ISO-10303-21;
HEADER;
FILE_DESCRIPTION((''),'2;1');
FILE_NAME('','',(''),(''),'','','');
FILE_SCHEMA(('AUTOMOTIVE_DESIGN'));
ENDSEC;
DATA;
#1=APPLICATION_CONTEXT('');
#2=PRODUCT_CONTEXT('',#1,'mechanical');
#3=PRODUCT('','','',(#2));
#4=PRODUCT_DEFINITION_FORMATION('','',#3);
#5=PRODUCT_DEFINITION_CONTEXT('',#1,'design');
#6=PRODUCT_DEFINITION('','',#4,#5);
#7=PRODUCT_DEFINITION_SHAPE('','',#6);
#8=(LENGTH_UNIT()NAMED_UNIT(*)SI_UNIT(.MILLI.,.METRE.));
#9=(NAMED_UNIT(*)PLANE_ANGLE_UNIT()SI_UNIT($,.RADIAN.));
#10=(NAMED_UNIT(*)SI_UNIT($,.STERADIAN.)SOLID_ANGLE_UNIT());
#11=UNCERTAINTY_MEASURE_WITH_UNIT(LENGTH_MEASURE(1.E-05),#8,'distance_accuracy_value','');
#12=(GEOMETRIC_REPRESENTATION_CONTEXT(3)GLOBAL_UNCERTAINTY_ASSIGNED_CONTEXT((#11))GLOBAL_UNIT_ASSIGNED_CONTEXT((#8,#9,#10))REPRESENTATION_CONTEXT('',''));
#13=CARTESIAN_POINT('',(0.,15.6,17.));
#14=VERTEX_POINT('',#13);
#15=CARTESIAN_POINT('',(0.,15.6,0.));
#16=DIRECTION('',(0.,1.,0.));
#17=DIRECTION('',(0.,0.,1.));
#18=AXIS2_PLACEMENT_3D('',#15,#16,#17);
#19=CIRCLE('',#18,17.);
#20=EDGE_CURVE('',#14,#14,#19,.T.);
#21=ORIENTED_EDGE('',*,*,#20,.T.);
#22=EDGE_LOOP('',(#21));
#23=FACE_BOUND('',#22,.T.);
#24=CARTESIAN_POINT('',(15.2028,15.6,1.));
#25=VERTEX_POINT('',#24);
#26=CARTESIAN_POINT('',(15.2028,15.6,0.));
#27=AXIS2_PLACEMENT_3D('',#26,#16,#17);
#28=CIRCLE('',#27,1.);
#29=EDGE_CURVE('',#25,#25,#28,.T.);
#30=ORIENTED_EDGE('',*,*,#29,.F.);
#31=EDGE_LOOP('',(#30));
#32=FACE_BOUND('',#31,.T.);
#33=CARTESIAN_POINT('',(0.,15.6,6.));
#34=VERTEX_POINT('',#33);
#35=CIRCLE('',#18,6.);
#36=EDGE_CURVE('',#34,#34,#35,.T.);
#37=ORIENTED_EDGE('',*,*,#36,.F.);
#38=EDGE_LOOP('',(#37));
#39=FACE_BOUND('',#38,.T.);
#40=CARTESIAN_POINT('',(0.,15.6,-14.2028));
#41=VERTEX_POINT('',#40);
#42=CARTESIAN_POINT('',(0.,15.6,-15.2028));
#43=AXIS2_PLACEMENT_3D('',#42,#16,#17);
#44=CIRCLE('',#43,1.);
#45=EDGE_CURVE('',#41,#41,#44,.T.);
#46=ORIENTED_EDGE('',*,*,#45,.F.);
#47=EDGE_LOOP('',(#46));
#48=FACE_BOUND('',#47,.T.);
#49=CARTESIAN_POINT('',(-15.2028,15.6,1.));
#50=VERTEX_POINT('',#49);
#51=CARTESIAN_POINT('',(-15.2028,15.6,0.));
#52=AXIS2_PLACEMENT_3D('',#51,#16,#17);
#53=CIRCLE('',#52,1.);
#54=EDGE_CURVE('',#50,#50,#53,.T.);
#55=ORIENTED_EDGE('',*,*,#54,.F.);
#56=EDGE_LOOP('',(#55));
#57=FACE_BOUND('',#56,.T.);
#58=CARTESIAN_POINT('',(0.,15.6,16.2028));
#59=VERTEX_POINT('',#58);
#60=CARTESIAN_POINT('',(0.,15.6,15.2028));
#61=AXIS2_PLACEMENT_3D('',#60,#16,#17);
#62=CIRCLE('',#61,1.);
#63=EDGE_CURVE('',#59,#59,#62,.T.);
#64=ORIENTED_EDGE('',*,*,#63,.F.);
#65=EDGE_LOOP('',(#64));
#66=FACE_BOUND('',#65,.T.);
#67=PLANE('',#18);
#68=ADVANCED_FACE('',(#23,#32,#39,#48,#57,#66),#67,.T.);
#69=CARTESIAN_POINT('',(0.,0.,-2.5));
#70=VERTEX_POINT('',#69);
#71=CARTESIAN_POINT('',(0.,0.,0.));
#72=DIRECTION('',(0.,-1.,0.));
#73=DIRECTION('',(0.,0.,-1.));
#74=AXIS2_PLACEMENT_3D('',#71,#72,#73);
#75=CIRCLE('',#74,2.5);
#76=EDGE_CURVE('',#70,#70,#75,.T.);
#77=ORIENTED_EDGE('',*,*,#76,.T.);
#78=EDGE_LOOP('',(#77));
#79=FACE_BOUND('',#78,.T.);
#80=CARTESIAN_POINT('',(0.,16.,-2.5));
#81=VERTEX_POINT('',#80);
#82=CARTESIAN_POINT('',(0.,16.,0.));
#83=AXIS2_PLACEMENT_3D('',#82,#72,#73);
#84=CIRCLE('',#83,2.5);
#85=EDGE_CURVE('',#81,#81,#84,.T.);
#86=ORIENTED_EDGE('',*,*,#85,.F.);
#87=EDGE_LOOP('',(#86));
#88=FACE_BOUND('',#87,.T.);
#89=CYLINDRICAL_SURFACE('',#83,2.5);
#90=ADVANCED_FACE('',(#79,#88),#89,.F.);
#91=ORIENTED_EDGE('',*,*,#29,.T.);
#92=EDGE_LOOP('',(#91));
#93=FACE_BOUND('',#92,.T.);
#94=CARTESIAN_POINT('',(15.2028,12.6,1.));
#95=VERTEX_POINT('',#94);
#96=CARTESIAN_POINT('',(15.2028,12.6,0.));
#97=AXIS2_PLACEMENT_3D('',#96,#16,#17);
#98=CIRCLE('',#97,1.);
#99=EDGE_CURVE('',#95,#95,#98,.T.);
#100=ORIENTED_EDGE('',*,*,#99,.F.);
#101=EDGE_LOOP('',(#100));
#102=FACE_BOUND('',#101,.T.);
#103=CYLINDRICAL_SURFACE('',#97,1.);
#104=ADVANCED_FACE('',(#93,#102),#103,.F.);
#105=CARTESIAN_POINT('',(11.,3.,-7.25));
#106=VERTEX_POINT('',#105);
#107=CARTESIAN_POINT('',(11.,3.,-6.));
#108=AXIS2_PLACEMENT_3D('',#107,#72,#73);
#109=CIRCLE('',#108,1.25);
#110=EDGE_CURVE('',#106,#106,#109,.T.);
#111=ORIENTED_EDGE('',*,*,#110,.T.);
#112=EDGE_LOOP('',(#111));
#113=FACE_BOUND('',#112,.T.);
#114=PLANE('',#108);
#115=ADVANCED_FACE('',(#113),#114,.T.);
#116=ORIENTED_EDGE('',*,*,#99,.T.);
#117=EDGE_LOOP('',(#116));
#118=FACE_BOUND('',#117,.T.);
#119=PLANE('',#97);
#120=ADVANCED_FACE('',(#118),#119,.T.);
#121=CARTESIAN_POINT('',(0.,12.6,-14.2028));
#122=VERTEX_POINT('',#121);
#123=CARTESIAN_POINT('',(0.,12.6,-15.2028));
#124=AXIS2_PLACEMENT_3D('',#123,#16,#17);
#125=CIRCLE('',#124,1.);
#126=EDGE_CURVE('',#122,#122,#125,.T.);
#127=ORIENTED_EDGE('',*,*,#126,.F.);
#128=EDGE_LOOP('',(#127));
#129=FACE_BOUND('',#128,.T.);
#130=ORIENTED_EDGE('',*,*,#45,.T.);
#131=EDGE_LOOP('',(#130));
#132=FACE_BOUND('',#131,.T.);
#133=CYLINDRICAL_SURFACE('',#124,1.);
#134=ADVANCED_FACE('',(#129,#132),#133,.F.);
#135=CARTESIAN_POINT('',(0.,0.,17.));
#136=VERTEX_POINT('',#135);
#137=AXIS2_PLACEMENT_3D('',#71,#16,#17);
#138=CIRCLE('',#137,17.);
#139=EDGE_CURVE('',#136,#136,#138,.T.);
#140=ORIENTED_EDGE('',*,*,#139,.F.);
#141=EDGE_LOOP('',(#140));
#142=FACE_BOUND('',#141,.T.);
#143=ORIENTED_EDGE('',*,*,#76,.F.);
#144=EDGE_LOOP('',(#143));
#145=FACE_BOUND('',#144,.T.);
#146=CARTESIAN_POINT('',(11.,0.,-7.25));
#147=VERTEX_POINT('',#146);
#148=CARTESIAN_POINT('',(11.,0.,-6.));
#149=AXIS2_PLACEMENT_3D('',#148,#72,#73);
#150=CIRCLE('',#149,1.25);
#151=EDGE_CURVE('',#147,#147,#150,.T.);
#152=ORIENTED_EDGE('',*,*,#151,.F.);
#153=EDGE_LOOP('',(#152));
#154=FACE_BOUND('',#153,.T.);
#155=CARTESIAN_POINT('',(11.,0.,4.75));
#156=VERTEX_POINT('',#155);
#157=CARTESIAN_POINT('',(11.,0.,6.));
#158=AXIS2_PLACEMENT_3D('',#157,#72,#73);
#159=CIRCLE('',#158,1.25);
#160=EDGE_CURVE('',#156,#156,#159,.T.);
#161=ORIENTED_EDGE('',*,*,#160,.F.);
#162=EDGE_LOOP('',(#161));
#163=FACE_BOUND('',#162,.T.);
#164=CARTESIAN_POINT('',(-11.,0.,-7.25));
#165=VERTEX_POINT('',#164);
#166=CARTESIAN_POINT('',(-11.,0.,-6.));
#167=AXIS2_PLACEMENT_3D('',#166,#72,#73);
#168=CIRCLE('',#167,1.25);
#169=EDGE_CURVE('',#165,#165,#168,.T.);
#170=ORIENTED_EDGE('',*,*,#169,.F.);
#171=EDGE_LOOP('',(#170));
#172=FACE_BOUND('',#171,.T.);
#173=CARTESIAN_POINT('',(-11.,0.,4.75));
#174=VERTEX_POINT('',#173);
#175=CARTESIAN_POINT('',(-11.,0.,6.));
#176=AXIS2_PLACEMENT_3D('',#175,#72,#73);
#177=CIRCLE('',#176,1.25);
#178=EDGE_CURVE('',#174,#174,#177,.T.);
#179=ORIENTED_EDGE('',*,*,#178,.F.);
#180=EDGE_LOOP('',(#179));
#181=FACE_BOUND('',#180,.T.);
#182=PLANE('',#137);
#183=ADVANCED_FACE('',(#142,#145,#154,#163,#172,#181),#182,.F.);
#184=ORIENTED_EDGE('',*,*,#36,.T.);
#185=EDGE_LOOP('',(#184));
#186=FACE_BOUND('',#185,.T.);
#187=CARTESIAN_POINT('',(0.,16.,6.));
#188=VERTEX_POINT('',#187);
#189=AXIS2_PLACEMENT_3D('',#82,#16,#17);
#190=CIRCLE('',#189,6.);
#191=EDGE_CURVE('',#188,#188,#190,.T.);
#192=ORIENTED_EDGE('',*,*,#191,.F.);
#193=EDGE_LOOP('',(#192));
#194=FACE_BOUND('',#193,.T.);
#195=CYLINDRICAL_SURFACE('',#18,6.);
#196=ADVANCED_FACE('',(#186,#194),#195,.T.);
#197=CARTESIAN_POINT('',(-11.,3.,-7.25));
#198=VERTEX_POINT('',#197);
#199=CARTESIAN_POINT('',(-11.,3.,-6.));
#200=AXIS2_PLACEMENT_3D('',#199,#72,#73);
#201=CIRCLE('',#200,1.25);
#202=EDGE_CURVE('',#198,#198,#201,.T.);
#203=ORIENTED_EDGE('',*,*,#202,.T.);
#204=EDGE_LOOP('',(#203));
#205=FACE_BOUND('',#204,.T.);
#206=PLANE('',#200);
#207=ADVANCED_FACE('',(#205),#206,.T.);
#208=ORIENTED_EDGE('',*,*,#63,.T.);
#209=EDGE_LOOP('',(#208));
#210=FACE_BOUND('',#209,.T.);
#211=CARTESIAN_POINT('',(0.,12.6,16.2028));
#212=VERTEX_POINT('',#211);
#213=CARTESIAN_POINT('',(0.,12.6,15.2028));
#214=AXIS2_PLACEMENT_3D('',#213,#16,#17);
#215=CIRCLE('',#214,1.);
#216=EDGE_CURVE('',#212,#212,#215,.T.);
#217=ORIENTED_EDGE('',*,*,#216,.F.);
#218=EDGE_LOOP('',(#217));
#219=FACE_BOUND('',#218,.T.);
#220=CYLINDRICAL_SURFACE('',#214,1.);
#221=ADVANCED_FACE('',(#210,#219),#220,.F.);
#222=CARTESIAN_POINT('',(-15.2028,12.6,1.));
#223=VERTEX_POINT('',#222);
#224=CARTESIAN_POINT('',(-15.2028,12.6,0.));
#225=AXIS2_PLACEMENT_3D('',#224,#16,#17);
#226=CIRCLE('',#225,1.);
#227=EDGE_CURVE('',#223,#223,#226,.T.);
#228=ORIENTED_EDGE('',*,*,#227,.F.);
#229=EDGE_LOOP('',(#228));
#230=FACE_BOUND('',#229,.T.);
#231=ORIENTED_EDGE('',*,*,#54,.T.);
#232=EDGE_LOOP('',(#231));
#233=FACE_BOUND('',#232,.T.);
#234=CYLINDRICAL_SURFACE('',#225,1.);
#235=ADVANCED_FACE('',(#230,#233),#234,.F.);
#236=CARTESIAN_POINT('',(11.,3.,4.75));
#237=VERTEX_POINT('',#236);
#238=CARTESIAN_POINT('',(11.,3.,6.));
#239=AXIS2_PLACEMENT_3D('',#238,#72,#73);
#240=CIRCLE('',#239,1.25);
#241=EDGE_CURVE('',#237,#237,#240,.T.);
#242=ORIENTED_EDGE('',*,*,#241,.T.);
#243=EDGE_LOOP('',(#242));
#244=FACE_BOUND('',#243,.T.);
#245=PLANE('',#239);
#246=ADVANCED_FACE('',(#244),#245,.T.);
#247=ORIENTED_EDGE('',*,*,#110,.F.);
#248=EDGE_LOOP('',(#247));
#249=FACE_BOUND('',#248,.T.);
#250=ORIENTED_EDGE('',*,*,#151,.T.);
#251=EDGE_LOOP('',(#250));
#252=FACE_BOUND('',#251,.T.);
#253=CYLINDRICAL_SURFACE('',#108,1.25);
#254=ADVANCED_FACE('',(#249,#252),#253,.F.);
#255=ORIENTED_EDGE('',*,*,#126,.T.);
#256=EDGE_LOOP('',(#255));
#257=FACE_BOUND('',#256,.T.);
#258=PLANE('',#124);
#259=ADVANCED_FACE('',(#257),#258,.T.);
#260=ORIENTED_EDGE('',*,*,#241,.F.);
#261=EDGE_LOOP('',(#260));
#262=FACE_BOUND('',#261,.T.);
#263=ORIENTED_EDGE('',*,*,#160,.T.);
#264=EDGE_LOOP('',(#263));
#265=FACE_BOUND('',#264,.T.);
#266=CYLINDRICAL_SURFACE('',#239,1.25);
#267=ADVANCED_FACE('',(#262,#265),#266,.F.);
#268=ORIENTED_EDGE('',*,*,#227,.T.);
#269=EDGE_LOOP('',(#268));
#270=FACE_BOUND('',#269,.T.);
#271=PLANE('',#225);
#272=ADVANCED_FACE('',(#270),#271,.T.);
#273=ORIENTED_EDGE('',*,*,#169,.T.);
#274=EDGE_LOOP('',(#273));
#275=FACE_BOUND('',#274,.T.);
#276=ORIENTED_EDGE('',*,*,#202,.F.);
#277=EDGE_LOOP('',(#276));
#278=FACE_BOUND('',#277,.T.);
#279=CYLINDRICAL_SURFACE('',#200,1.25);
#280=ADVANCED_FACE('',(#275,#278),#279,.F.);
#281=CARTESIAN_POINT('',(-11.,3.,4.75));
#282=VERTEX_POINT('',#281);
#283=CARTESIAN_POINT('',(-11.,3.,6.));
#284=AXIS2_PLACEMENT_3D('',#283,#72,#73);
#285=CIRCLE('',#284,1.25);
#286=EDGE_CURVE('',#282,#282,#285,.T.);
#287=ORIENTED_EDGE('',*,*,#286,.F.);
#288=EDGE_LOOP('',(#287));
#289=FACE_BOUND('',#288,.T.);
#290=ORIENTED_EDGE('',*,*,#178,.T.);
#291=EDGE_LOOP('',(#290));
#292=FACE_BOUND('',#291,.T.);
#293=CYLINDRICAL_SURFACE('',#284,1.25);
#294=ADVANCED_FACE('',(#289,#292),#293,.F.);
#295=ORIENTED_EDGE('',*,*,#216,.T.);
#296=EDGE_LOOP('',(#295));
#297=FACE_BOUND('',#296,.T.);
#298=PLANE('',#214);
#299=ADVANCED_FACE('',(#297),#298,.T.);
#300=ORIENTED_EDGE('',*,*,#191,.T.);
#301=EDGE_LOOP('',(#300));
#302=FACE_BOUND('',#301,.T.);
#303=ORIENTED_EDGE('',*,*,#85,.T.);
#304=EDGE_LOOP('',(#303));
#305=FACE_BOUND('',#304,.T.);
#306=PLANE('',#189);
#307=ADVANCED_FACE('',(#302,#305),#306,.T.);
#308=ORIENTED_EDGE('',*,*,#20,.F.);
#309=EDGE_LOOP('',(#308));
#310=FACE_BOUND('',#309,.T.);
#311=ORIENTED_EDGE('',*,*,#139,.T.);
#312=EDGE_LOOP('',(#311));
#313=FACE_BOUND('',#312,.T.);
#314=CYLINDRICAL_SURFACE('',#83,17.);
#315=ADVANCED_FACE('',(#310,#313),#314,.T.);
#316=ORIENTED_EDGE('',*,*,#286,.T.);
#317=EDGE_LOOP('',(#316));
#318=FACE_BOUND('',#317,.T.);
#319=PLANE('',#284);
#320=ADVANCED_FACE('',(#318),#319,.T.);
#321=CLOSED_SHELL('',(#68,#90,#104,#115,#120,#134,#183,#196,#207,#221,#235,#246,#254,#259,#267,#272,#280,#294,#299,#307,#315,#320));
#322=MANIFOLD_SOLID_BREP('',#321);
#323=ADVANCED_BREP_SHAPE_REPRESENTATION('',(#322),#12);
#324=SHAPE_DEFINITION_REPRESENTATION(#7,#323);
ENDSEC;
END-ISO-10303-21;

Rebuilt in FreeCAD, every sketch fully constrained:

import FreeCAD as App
import Part
import Sketcher
from FreeCAD import Vector
Q = App.Units.Quantity

doc = App.newDocument("Part")
params = doc.addObject("Spreadsheet::Sheet", "Params")
for row, (alias, value) in enumerate([
    ("sketch1_diameter", "34 mm"),
    ("pad1_length", "16 mm"),
    ("sketch2_diameter", "34 mm"),
    ("sketch2_diameter2", "12 mm"),
    ("pocket1_length", "0.4 mm"),
    ("sketch3_diameter", "2 mm"),
    ("pocket2_length", "3.4 mm"),
    ("sketch4_diameter", "2.5 mm"),
    ("pocket3_length", "3 mm"),
    ("sketch5_diameter", "5 mm"),
], start=1):
    params.set(f"A{row}", alias)
    params.set(f"B{row}", "=" + value)
    params.setAlias(f"B{row}", alias)

body = doc.addObject("PartDesign::Body", "Body")

sketch1 = body.newObject("Sketcher::SketchObject", "Sketch")
sketch1.AttachmentSupport = (doc.getObject("XZ_Plane"), [""])
sketch1.MapMode = "FlatFace"
sketch1.addGeometry(Part.Circle(Vector(0, 0, 0), Vector(0, 0, 1), 17), False)
sketch1.addConstraint([
    Sketcher.Constraint("Coincident", 0, 3, -1, 1),
    Sketcher.Constraint("Diameter", 0, Q("34 mm")),
])
sketch1.setExpression("Constraints[1]", "Params.sketch1_diameter")
pad1 = body.newObject("PartDesign::Pad", "Pad")
pad1.Profile = sketch1
pad1.setExpression("Length", "Params.pad1_length")
pad1.Reversed = True

sketch2 = body.newObject("Sketcher::SketchObject", "Sketch001")
sketch2.AttachmentSupport = (doc.getObject("XZ_Plane"), [""])
sketch2.MapMode = "FlatFace"
sketch2.AttachmentOffset = App.Placement(Vector(0, 0, -15.6), App.Rotation())
sketch2.addGeometry([
    Part.Circle(Vector(0, 0, 0), Vector(0, 0, 1), 17),
    Part.Circle(Vector(0, 0, 0), Vector(0, 0, 1), 6),
], False)
sketch2.addConstraint([
    Sketcher.Constraint("Coincident", 0, 3, -1, 1),
    Sketcher.Constraint("Coincident", 1, 3, -1, 1),
    Sketcher.Constraint("Diameter", 0, Q("34 mm")),
    Sketcher.Constraint("Diameter", 1, Q("12 mm")),
])
sketch2.setExpression("Constraints[2]", "Params.sketch2_diameter")
sketch2.setExpression("Constraints[3]", "Params.sketch2_diameter2")
pocket1 = body.newObject("PartDesign::Pocket", "Pocket")
pocket1.Profile = sketch2
pocket1.setExpression("Length", "Params.pocket1_length")

sketch3 = body.newObject("Sketcher::SketchObject", "Sketch002")
sketch3.AttachmentSupport = (doc.getObject("XZ_Plane"), [""])
sketch3.MapMode = "FlatFace"
sketch3.AttachmentOffset = App.Placement(Vector(0, 0, -16), App.Rotation())
sketch3.addGeometry([
    Part.Circle(Vector(0, -15.2028, 0), Vector(0, 0, 1), 1),
    Part.Circle(Vector(15.2028, 0, 0), Vector(0, 0, 1), 1),
    Part.Circle(Vector(0, 15.2028, 0), Vector(0, 0, 1), 1),
    Part.Circle(Vector(-15.2028, 0, 0), Vector(0, 0, 1), 1),
], False)
sketch3.addConstraint([
    Sketcher.Constraint("Equal", 0, 1),
    Sketcher.Constraint("Equal", 1, 2),
    Sketcher.Constraint("Equal", 2, 3),
    Sketcher.Constraint("Symmetric", 0, 3, 2, 3, -1, 1),
    Sketcher.Constraint("Symmetric", 1, 3, 3, 3, -1, 1),
    Sketcher.Constraint("PointOnObject", 0, 3, -2),
    Sketcher.Constraint("PointOnObject", 1, 3, -1),
    Sketcher.Constraint("Diameter", 0, Q("2 mm")),
    Sketcher.Constraint("DistanceY", 0, 3, -1, 1, Q("15.2028 mm")),
    Sketcher.Constraint("DistanceX", -1, 1, 1, 3, Q("15.2028 mm")),
])
sketch3.setExpression("Constraints[7]", "Params.sketch3_diameter")
pocket2 = body.newObject("PartDesign::Pocket", "Pocket001")
pocket2.Profile = sketch3
pocket2.setExpression("Length", "Params.pocket2_length")
pocket2.Reversed = True

sketch4 = body.newObject("Sketcher::SketchObject", "Sketch003")
sketch4.AttachmentSupport = (doc.getObject("XZ_Plane"), [""])
sketch4.MapMode = "FlatFace"
sketch4.addGeometry([
    Part.Circle(Vector(-11, 6, 0), Vector(0, 0, 1), 1.25),
    Part.Circle(Vector(11, 6, 0), Vector(0, 0, 1), 1.25),
    Part.Circle(Vector(11, -6, 0), Vector(0, 0, 1), 1.25),
    Part.Circle(Vector(-11, -6, 0), Vector(0, 0, 1), 1.25),
], False)
sketch4.addConstraint([
    Sketcher.Constraint("Equal", 0, 1),
    Sketcher.Constraint("Equal", 1, 2),
    Sketcher.Constraint("Equal", 2, 3),
    Sketcher.Constraint("Symmetric", 0, 3, 2, 3, -1, 1),
    Sketcher.Constraint("Symmetric", 1, 3, 3, 3, -1, 1),
    Sketcher.Constraint("Symmetric", 0, 3, 1, 3, -2),
    Sketcher.Constraint("Diameter", 0, Q("2.5 mm")),
    Sketcher.Constraint("DistanceX", 0, 3, -1, 1, Q("11 mm")),
    Sketcher.Constraint("DistanceY", -1, 1, 0, 3, Q("6 mm")),
])
sketch4.setExpression("Constraints[6]", "Params.sketch4_diameter")
pocket3 = body.newObject("PartDesign::Pocket", "Pocket002")
pocket3.Profile = sketch4
pocket3.setExpression("Length", "Params.pocket3_length")

sketch5 = body.newObject("Sketcher::SketchObject", "Sketch004")
sketch5.AttachmentSupport = (doc.getObject("XZ_Plane"), [""])
sketch5.MapMode = "FlatFace"
sketch5.addGeometry(Part.Circle(Vector(0, 0, 0), Vector(0, 0, 1), 2.5), False)
sketch5.addConstraint([
    Sketcher.Constraint("Coincident", 0, 3, -1, 1),
    Sketcher.Constraint("Diameter", 0, Q("5 mm")),
])
sketch5.setExpression("Constraints[1]", "Params.sketch5_diameter")
pocket4 = body.newObject("PartDesign::Pocket", "Pocket003")
pocket4.Profile = sketch5
pocket4.Type = "ThroughAll"

doc.recompute()
